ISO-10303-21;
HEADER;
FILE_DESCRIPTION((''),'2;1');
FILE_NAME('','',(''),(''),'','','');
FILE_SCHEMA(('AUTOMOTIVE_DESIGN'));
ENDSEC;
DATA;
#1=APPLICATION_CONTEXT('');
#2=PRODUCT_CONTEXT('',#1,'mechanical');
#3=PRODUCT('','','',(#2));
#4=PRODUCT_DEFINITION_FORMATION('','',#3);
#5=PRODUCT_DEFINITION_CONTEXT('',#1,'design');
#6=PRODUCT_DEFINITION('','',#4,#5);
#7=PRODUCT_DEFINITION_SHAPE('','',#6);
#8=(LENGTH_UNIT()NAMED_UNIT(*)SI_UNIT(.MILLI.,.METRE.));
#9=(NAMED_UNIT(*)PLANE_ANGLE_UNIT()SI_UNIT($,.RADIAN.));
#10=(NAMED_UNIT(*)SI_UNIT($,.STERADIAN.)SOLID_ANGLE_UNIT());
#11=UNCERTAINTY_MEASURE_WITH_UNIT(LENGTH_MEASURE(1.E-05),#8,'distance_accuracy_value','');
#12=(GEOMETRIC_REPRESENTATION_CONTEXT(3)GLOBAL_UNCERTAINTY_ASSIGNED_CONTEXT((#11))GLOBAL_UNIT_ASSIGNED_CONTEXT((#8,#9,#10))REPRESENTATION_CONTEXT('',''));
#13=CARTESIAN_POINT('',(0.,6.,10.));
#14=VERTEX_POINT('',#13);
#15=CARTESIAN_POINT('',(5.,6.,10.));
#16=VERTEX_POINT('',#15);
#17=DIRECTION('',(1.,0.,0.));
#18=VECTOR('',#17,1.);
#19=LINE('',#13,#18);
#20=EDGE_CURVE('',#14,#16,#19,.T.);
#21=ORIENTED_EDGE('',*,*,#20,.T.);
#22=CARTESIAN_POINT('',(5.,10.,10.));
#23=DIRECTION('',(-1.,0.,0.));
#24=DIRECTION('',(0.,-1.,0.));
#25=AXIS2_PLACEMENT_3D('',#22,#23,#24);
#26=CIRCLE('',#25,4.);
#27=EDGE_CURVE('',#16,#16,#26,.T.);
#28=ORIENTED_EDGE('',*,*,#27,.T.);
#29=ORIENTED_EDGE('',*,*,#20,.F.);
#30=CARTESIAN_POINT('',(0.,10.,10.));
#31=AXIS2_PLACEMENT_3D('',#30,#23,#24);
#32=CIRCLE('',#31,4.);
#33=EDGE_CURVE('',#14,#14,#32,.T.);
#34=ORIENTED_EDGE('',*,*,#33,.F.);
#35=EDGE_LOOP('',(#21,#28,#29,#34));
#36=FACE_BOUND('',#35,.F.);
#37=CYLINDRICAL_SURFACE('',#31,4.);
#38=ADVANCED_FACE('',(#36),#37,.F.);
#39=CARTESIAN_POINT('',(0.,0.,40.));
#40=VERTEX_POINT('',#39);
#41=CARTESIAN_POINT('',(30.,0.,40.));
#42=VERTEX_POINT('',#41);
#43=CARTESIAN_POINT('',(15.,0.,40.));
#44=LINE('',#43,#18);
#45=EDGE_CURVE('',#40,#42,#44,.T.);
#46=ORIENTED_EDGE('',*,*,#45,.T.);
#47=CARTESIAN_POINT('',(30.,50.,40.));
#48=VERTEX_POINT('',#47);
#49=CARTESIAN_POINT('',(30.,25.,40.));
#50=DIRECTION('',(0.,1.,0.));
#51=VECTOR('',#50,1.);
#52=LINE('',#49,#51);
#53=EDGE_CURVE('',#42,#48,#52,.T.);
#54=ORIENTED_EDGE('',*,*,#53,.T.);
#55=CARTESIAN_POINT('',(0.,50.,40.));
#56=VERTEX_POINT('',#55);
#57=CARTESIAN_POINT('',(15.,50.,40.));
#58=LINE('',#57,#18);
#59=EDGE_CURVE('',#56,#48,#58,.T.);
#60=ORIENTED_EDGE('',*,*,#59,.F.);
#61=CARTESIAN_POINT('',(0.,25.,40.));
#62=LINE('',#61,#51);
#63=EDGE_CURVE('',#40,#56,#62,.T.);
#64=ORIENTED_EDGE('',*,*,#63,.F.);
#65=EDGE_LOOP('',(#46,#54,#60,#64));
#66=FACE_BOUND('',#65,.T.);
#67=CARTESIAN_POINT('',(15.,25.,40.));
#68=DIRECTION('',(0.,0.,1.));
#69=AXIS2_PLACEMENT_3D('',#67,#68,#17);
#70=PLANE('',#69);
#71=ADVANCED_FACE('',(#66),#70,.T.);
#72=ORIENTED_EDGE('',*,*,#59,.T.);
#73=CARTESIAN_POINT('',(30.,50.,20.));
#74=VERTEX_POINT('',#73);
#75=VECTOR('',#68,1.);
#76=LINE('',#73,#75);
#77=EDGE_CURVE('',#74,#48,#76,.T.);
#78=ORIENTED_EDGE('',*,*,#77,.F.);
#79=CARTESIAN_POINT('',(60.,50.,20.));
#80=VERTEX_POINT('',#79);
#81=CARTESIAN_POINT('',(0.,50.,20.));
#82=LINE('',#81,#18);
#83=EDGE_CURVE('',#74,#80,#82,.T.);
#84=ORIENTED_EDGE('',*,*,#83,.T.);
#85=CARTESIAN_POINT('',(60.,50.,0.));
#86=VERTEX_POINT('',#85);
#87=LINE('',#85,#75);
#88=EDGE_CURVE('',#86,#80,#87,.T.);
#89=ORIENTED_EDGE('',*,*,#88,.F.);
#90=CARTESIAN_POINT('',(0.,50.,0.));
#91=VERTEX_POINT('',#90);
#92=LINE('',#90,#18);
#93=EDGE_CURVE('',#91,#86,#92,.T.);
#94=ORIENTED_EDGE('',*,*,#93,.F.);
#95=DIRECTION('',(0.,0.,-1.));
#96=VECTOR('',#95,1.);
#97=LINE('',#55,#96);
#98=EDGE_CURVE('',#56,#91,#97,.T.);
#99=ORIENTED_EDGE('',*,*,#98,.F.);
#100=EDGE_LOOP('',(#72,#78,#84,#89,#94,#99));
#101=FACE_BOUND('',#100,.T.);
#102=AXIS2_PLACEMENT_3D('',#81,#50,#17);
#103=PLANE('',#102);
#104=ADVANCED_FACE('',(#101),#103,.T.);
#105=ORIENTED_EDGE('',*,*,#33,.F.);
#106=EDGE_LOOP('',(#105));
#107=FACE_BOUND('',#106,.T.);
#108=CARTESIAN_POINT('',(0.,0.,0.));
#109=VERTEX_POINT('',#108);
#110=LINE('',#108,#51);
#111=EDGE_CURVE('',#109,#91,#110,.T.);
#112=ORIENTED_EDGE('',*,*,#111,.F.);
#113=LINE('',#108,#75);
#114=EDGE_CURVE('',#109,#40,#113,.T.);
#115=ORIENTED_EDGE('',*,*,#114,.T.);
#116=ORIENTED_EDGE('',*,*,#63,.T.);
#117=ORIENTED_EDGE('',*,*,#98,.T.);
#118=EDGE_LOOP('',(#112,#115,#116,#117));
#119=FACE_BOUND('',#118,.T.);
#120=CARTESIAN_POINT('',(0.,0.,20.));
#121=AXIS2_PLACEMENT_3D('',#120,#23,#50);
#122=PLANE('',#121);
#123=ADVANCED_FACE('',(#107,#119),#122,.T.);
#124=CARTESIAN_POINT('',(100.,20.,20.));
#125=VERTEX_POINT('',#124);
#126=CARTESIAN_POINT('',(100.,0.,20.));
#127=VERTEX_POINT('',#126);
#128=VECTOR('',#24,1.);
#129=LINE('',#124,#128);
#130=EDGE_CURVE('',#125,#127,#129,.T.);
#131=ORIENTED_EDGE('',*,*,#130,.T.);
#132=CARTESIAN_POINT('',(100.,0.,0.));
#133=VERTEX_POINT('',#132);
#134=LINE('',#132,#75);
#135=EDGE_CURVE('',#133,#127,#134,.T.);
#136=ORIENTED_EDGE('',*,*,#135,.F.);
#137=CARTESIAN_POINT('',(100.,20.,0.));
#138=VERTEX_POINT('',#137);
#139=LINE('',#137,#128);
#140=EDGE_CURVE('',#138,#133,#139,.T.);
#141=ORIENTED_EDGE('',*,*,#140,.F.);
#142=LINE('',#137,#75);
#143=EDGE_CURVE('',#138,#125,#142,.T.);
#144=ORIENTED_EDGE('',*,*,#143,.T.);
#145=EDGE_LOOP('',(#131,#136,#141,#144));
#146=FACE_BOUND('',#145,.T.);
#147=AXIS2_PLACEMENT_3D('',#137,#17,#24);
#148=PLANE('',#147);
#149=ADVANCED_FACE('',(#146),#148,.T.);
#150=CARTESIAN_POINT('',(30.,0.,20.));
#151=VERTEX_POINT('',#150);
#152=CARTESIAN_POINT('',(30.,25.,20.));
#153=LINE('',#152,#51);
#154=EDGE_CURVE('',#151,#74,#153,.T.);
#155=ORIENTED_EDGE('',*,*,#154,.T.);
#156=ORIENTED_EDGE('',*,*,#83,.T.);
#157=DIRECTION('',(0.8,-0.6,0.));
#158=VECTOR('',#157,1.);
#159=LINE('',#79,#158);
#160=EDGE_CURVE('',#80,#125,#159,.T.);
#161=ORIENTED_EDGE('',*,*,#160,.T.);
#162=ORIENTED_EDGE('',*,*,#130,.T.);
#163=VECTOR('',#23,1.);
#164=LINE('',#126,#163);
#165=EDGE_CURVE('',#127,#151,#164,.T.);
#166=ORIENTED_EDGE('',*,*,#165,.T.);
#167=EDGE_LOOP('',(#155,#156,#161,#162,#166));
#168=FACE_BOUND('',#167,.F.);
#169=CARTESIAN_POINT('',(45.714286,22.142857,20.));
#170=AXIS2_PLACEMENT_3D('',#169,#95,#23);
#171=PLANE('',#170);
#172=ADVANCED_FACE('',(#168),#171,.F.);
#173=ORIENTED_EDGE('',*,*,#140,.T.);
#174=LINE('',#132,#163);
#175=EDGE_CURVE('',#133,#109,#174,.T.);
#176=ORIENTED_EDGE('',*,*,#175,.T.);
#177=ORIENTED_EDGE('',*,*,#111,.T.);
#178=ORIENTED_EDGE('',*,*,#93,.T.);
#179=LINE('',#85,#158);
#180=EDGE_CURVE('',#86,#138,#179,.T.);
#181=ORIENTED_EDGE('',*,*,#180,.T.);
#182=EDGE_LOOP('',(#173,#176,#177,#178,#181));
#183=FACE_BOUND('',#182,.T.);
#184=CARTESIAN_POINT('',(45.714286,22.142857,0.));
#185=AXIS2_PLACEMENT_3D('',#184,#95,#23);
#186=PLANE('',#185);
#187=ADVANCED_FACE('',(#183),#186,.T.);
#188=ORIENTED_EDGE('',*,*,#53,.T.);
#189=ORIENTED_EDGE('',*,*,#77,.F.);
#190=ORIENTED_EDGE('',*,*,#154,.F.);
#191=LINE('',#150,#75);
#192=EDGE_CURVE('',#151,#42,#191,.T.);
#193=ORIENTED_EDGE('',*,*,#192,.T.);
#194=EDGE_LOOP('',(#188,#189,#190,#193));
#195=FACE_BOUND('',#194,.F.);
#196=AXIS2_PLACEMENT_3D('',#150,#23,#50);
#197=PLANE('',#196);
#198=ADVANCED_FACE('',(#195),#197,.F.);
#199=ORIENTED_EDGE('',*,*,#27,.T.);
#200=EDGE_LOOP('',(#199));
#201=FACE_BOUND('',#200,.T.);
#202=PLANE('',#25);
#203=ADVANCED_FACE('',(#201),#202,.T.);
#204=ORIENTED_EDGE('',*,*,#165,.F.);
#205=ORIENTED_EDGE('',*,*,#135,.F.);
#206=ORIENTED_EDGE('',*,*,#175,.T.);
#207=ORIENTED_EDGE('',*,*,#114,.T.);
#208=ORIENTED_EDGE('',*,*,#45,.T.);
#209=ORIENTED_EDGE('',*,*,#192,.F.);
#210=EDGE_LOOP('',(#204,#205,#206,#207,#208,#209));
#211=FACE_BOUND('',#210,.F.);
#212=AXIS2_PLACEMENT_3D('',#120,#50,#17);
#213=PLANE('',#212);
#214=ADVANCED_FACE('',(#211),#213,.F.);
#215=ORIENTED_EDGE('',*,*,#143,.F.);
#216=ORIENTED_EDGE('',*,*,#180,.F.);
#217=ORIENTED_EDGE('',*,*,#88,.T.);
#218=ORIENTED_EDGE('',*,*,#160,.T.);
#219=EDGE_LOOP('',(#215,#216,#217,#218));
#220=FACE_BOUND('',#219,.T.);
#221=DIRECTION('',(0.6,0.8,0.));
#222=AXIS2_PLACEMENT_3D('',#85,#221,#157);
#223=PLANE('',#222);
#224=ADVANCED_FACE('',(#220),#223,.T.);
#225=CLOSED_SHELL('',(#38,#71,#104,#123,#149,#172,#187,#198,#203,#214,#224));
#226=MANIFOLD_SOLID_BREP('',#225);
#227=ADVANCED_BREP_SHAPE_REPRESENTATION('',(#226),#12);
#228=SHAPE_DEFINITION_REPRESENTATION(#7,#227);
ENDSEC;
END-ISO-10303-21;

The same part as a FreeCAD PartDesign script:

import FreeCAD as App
import Part
import Sketcher


def add_polygon(sketch, points):
    """Adds a closed chain of lines whose ends are joined by coincident constraints."""
    first, n = sketch.GeometryCount, len(points)
    for a, b in zip(points, points[1:] + points[:1]):
        sketch.addGeometry(Part.LineSegment(App.Vector(*a, 0), App.Vector(*b, 0)), False)
    for i in range(n):
        sketch.addConstraint(Sketcher.Constraint("Coincident", first + i, 2, first + (i + 1) % n, 1))

doc = App.newDocument("Part")
body = doc.addObject("PartDesign::Body", "Body")

# Sketch on XY plane
sketch1 = body.newObject("Sketcher::SketchObject", "Sketch")
sketch1.AttachmentSupport = (doc.getObject("XY_Plane"), [""])
sketch1.MapMode = "FlatFace"
add_polygon(sketch1, [(0, 50), (0, 0), (100, 0), (100, 20), (60, 50)])  # lines 0-4
sketch1.addConstraint([
    Sketcher.Constraint("Vertical", 0),
    Sketcher.Constraint("Horizontal", 1),
    Sketcher.Constraint("Vertical", 2),
    Sketcher.Constraint("Horizontal", 4),
    Sketcher.Constraint("Coincident", 0, 2, -1, 1),
    Sketcher.Constraint("DistanceX", 1, 1, 1, 2, 100.0),
    Sketcher.Constraint("DistanceX", 4, 2, 4, 1, 60.0),
    Sketcher.Constraint("DistanceY", 0, 2, 0, 1, 50.0),
    Sketcher.Constraint("DistanceY", 2, 1, 2, 2, 20.0),
])
pad1 = body.newObject("PartDesign::Pad", "Pad")
pad1.Profile = sketch1
pad1.Length = 20

# Sketch on XY plane
sketch2 = body.newObject("Sketcher::SketchObject", "Sketch001")
sketch2.AttachmentSupport = (doc.getObject("XY_Plane"), [""])
sketch2.MapMode = "FlatFace"
sketch2.AttachmentOffset = App.Placement(App.Vector(0, 0, 20), App.Rotation())
add_polygon(sketch2, [(0, 50), (0, 0), (30, 0), (30, 50)])  # lines 0-3
sketch2.addConstraint([
    Sketcher.Constraint("Vertical", 0),
    Sketcher.Constraint("Horizontal", 1),
    Sketcher.Constraint("Vertical", 2),
    Sketcher.Constraint("Horizontal", 3),
    Sketcher.Constraint("Coincident", 0, 2, -1, 1),
    Sketcher.Constraint("DistanceX", 1, 1, 1, 2, 30.0),
    Sketcher.Constraint("DistanceY", 0, 2, 0, 1, 50.0),
])
pad2 = body.newObject("PartDesign::Pad", "Pad001")
pad2.Profile = sketch2
pad2.Length = 20

# Sketch on YZ plane
sketch3 = body.newObject("Sketcher::SketchObject", "Sketch002")
sketch3.AttachmentSupport = (doc.getObject("YZ_Plane"), [""])
sketch3.MapMode = "FlatFace"
sketch3.addGeometry(Part.Circle(App.Vector(10, 10, 0), App.Vector(0, 0, 1), 4), False)
sketch3.addConstraint([
    Sketcher.Constraint("Diameter", 0, 8.0),
    Sketcher.Constraint("DistanceX", -1, 1, 0, 3, 10.0),
    Sketcher.Constraint("DistanceY", -1, 1, 0, 3, 10.0),
])
pocket1 = body.newObject("PartDesign::Pocket", "Pocket")
pocket1.Profile = sketch3
pocket1.Length = 5
pocket1.Reversed = True

doc.recompute()
